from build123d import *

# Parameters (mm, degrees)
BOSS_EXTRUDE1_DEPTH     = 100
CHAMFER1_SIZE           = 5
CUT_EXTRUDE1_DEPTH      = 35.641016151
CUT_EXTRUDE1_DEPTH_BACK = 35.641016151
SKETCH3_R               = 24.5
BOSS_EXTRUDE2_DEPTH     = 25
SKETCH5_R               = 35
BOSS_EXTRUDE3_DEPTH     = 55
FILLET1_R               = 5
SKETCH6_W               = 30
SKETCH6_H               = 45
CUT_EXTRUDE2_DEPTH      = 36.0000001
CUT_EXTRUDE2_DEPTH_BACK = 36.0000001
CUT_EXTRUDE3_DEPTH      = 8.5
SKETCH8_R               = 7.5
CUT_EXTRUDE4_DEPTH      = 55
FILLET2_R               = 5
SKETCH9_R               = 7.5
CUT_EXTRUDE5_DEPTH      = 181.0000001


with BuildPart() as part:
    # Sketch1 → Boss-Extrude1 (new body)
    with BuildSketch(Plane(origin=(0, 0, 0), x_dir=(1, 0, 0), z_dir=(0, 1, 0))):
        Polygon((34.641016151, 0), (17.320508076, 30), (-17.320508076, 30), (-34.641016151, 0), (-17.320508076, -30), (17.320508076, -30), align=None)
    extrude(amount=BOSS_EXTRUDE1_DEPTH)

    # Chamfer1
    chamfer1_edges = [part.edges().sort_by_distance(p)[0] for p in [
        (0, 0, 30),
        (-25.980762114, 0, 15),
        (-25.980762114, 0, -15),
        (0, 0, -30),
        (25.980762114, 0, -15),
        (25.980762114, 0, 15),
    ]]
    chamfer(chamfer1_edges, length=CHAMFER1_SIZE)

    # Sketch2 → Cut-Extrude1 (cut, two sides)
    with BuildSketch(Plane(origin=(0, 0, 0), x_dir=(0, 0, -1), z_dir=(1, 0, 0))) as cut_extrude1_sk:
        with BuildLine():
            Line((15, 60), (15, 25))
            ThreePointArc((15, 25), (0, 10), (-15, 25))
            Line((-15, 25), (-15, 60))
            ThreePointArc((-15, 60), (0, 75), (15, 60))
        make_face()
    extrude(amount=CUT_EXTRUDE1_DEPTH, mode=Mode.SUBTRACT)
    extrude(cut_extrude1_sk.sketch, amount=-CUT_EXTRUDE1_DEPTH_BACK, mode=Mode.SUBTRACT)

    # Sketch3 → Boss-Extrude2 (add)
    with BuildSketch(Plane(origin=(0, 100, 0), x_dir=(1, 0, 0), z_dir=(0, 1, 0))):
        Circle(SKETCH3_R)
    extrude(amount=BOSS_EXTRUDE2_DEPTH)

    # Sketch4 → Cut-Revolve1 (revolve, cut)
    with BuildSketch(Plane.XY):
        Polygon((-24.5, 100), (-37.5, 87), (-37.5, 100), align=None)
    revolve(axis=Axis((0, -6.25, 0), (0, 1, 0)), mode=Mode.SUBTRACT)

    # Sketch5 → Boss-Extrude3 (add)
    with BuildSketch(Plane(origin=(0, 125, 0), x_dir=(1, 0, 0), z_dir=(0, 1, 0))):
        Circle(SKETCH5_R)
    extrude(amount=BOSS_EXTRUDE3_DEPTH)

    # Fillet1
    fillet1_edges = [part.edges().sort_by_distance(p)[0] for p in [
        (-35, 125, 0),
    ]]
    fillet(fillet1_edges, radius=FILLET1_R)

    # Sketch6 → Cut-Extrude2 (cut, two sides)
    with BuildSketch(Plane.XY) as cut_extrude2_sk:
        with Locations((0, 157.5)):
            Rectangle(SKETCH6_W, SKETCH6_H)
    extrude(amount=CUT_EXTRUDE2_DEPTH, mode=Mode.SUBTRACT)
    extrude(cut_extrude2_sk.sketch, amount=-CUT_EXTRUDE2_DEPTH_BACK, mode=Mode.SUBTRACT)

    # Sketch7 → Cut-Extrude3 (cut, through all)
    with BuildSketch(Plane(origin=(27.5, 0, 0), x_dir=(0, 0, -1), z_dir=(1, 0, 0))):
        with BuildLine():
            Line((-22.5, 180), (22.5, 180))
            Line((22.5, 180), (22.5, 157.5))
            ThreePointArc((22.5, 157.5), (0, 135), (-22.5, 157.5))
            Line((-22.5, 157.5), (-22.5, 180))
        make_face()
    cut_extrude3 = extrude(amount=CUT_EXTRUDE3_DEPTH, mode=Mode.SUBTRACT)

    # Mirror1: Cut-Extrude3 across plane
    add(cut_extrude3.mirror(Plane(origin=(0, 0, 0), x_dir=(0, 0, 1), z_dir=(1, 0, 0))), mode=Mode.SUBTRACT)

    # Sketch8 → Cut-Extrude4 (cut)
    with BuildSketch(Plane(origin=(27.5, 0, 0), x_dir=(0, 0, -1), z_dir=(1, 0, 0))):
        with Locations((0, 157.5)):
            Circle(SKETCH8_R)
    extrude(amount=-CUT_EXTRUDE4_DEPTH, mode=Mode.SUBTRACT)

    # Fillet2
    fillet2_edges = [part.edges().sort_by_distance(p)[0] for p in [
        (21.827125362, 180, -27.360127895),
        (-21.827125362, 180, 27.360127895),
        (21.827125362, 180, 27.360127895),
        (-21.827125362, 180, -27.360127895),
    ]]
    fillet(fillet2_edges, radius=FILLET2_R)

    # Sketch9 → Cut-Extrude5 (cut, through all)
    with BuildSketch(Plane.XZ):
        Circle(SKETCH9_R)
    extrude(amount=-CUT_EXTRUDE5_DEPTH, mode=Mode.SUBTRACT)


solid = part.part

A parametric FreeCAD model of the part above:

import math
import FreeCAD as App
import Part
import Sketcher
from FreeCAD import Vector
Q = App.Units.Quantity


def edges_at(feature, points):
    """Names of the edges that pass closest to the given points."""
    edges = feature.Shape.Edges
    near = lambda p: min(range(len(edges)), key=lambda i: edges[i].distToShape(Part.Vertex(*p))[0])
    return sorted({f"Edge{near(p) + 1}" for p in points})

doc = App.newDocument("Part")
body = doc.addObject("PartDesign::Body", "Body")

# Sketch on XZ plane
sketch1 = body.newObject("Sketcher::SketchObject", "Sketch")
sketch1.AttachmentSupport = (doc.getObject("XZ_Plane"), [""])
sketch1.MapMode = "FlatFace"
sketch1.addGeometry([
    Part.LineSegment(Vector(35, 0, 0), Vector(17, -30, 0)),  # 0
    Part.LineSegment(Vector(17, -30, 0), Vector(-17, -30, 0)),  # 1
    Part.LineSegment(Vector(-17, -30, 0), Vector(-35, 0, 0)),  # 2
    Part.LineSegment(Vector(-35, 0, 0), Vector(-17, 30, 0)),  # 3
    Part.LineSegment(Vector(-17, 30, 0), Vector(17, 30, 0)),  # 4
    Part.LineSegment(Vector(17, 30, 0), Vector(35, 0, 0)),  # 5
], False)
sketch1.addConstraint([
    Sketcher.Constraint("Coincident", 0, 2, 1, 1),
    Sketcher.Constraint("Coincident", 1, 2, 2, 1),
    Sketcher.Constraint("Coincident", 2, 2, 3, 1),
    Sketcher.Constraint("Coincident", 3, 2, 4, 1),
    Sketcher.Constraint("Coincident", 4, 2, 5, 1),
    Sketcher.Constraint("Coincident", 5, 2, 0, 1),
    Sketcher.Constraint("Horizontal", 1),
    Sketcher.Constraint("Horizontal", 4),
    Sketcher.Constraint("Symmetric", 0, 2, 3, 2, -1, 1),
    Sketcher.Constraint("Symmetric", 2, 2, 5, 2, -1, 1),
    Sketcher.Constraint("PointOnObject", 2, 2, -1),
    Sketcher.Constraint("Parallel", 2, 5),
    Sketcher.Constraint("Vertical", 1, 2, 3, 2),
    Sketcher.Constraint("Angle", 0, Q("-120 deg")),
    Sketcher.Constraint("DistanceY", 0, 2, -1, 1, Q("30 mm")),
    Sketcher.Constraint("DistanceX", 1, 2, 1, 1, Q("34.641016 mm")),
])
pad1 = body.newObject("PartDesign::Pad", "Pad")
pad1.Profile = sketch1
pad1.Length = 100
pad1.Reversed = True
doc.recompute()

chamfer = body.newObject("PartDesign::Chamfer", "Chamfer")
chamfer.Base = (pad1, edges_at(pad1, [
    (0, 0, 30),
    (-25.981, 0, 15),
    (-25.981, 0, -15),
    (0, 0, -30),
    (25.981, 0, -15),
    (25.981, 0, 15),
]))
chamfer.Size = 5

# Sketch on YZ plane
sketch2 = body.newObject("Sketcher::SketchObject", "Sketch001")
sketch2.AttachmentSupport = (doc.getObject("YZ_Plane"), [""])
sketch2.MapMode = "FlatFace"
sketch2.addGeometry([
    Part.LineSegment(Vector(25, -15, 0), Vector(60, -15, 0)),
    Part.ArcOfCircle(Part.Circle(Vector(60, 0, 0), Vector(0, 0, 1), 15), math.radians(-90), math.radians(90)),
    Part.LineSegment(Vector(60, 15, 0), Vector(25, 15, 0)),
    Part.ArcOfCircle(Part.Circle(Vector(25, 0, 0), Vector(0, 0, 1), 15), math.radians(90), math.radians(270)),
], False)
sketch2.addConstraint([
    Sketcher.Constraint("Tangent", 0, 2, 1, 1),
    Sketcher.Constraint("Tangent", 1, 2, 2, 1),
    Sketcher.Constraint("Tangent", 2, 2, 3, 1),
    Sketcher.Constraint("Tangent", 3, 2, 0, 1),
    Sketcher.Constraint("Horizontal", 0),
    Sketcher.Constraint("Horizontal", 2),
    Sketcher.Constraint("PointOnObject", 1, 3, -1),
    Sketcher.Constraint("Radius", 1, Q("15 mm")),
    Sketcher.Constraint("DistanceX", 0, 1, 0, 2, Q("35 mm")),
    Sketcher.Constraint("DistanceX", -1, 1, 1, 3, Q("60 mm")),
])
pocket1 = body.newObject("PartDesign::Pocket", "Pocket")
pocket1.Profile = sketch2
pocket1.Type = "ThroughAll"
pocket1.Midplane = True

# Sketch on XZ plane
sketch3 = body.newObject("Sketcher::SketchObject", "Sketch002")
sketch3.AttachmentSupport = (doc.getObject("XZ_Plane"), [""])
sketch3.MapMode = "FlatFace"
sketch3.AttachmentOffset = App.Placement(Vector(0, 0, -100), App.Rotation())
sketch3.addGeometry(Part.Circle(Vector(0, 0, 0), Vector(0, 0, 1), 24), False)
sketch3.addConstraint([
    Sketcher.Constraint("Coincident", 0, 3, -1, 1),
    Sketcher.Constraint("Diameter", 0, Q("49 mm")),
])
pad2 = body.newObject("PartDesign::Pad", "Pad001")
pad2.Profile = sketch3
pad2.Length = 25
pad2.Reversed = True

# Sketch on XY plane
sketch4 = body.newObject("Sketcher::SketchObject", "Sketch003")
sketch4.AttachmentSupport = (doc.getObject("XY_Plane"), [""])
sketch4.MapMode = "FlatFace"
sketch4.addGeometry([
    Part.LineSegment(Vector(-38, 87, 0), Vector(-24, 100, 0)),
    Part.LineSegment(Vector(-24, 100, 0), Vector(-38, 100, 0)),
    Part.LineSegment(Vector(-38, 100, 0), Vector(-38, 87, 0)),
], False)
sketch4.addConstraint([
    Sketcher.Constraint("Coincident", 0, 2, 1, 1),
    Sketcher.Constraint("Coincident", 1, 2, 2, 1),
    Sketcher.Constraint("Coincident", 2, 2, 0, 1),
    Sketcher.Constraint("Horizontal", 1),
    Sketcher.Constraint("Vertical", 2),
    Sketcher.Constraint("Equal", 1, 2),
    Sketcher.Constraint("DistanceX", 1, 2, 1, 1, Q("13 mm")),
    Sketcher.Constraint("DistanceY", -1, 1, 0, 2, Q("100 mm")),
    Sketcher.Constraint("DistanceX", 0, 2, -1, 1, Q("24.5 mm")),
])
groove = body.newObject("PartDesign::Groove", "Groove")
groove.Profile = sketch4
groove.ReferenceAxis = (sketch4, ["V_Axis"])
groove.Angle = 360

# Sketch on XZ plane
sketch5 = body.newObject("Sketcher::SketchObject", "Sketch004")
sketch5.AttachmentSupport = (doc.getObject("XZ_Plane"), [""])
sketch5.MapMode = "FlatFace"
sketch5.AttachmentOffset = App.Placement(Vector(0, 0, -125), App.Rotation())
sketch5.addGeometry(Part.Circle(Vector(0, 0, 0), Vector(0, 0, 1), 35), False)
sketch5.addConstraint([
    Sketcher.Constraint("Coincident", 0, 3, -1, 1),
    Sketcher.Constraint("Diameter", 0, Q("70 mm")),
])
pad3 = body.newObject("PartDesign::Pad", "Pad002")
pad3.Profile = sketch5
pad3.Length = 55
pad3.Reversed = True
doc.recompute()

fillet = body.newObject("PartDesign::Fillet", "Fillet")
fillet.Base = (pad3, edges_at(pad3, [(-35, 125, 0)]))
fillet.Radius = 5

# Sketch on XY plane
sketch6 = body.newObject("Sketcher::SketchObject", "Sketch005")
sketch6.AttachmentSupport = (doc.getObject("XY_Plane"), [""])
sketch6.MapMode = "FlatFace"
sketch6.addGeometry([
    Part.LineSegment(Vector(-15, 180, 0), Vector(-15, 135, 0)),
    Part.LineSegment(Vector(-15, 135, 0), Vector(15, 135, 0)),
    Part.LineSegment(Vector(15, 135, 0), Vector(15, 180, 0)),
    Part.LineSegment(Vector(15, 180, 0), Vector(-15, 180, 0)),
], False)
sketch6.addConstraint([
    Sketcher.Constraint("Coincident", 0, 2, 1, 1),
    Sketcher.Constraint("Coincident", 1, 2, 2, 1),
    Sketcher.Constraint("Coincident", 2, 2, 3, 1),
    Sketcher.Constraint("Coincident", 3, 2, 0, 1),
    Sketcher.Constraint("Vertical", 0),
    Sketcher.Constraint("Horizontal", 1),
    Sketcher.Constraint("Vertical", 2),
    Sketcher.Constraint("Horizontal", 3),
    Sketcher.Constraint("DistanceX", 1, 1, 1, 2, Q("30 mm")),
    Sketcher.Constraint("DistanceY", 0, 2, 0, 1, Q("45 mm")),
    Sketcher.Constraint("DistanceX", 0, 2, -1, 1, Q("15 mm")),
    Sketcher.Constraint("DistanceY", -1, 1, 0, 2, Q("135 mm")),
])
pocket2 = body.newObject("PartDesign::Pocket", "Pocket001")
pocket2.Profile = sketch6
pocket2.Type = "ThroughAll"
pocket2.Midplane = True

# Sketch on YZ plane
sketch7 = body.newObject("Sketcher::SketchObject", "Sketch006")
sketch7.AttachmentSupport = (doc.getObject("YZ_Plane"), [""])
sketch7.MapMode = "FlatFace"
sketch7.AttachmentOffset = App.Placement(Vector(0, 0, 27.5), App.Rotation())
sketch7.addGeometry([
    Part.LineSegment(Vector(180, -22, 0), Vector(180, 22, 0)),
    Part.LineSegment(Vector(180, 22, 0), Vector(158, 22, 0)),
    Part.ArcOfCircle(Part.Circle(Vector(158, 0, 0), Vector(0, 0, 1), 22), math.radians(90), math.radians(270)),
    Part.LineSegment(Vector(158, -22, 0), Vector(180, -22, 0)),
], False)
sketch7.addConstraint([
    Sketcher.Constraint("Coincident", 0, 2, 1, 1),
    Sketcher.Constraint("Tangent", 1, 2, 2, 1),
    Sketcher.Constraint("Tangent", 2, 2, 3, 1),
    Sketcher.Constraint("Coincident", 3, 2, 0, 1),
    Sketcher.Constraint("Vertical", 0),
    Sketcher.Constraint("Horizontal", 1),
    Sketcher.Constraint("Horizontal", 3),
    Sketcher.Constraint("PointOnObject", 2, 3, -1),
    Sketcher.Constraint("Radius", 2, Q("22.5 mm")),
    Sketcher.Constraint("DistanceX", 1, 2, 1, 1, Q("22.5 mm")),
    Sketcher.Constraint("DistanceX", -1, 1, 0, 2, Q("180 mm")),
])
pocket3 = body.newObject("PartDesign::Pocket", "Pocket002")
pocket3.Profile = sketch7
pocket3.Type = "ThroughAll"
pocket3.Reversed = True
doc.recompute()

mirrored = body.newObject("PartDesign::Mirrored", "Mirrored")
mirrored.Originals = [pocket3]
mirrored.MirrorPlane = (doc.getObject("YZ_Plane"), [""])
body.Tip = mirrored

# Sketch on YZ plane
sketch8 = body.newObject("Sketcher::SketchObject", "Sketch007")
sketch8.AttachmentSupport = (doc.getObject("YZ_Plane"), [""])
sketch8.MapMode = "FlatFace"
sketch8.AttachmentOffset = App.Placement(Vector(0, 0, 27.5), App.Rotation())
sketch8.addGeometry(Part.Circle(Vector(158, 0, 0), Vector(0, 0, 1), 8), False)
sketch8.addConstraint([
    Sketcher.Constraint("PointOnObject", 0, 3, -1),
    Sketcher.Constraint("Diameter", 0, Q("15 mm")),
    Sketcher.Constraint("DistanceX", -1, 1, 0, 3, Q("157.5 mm")),
])
pocket4 = body.newObject("PartDesign::Pocket", "Pocket003")
pocket4.Profile = sketch8
pocket4.Length = 55
doc.recompute()

fillet2 = body.newObject("PartDesign::Fillet", "Fillet001")
fillet2.Base = (pocket4, edges_at(pocket4, [
    (21.827, 180, -27.36),
    (-21.827, 180, 27.36),
    (21.827, 180, 27.36),
    (-21.827, 180, -27.36),
]))
fillet2.Radius = 5

# Sketch on XZ plane
sketch9 = body.newObject("Sketcher::SketchObject", "Sketch008")
sketch9.AttachmentSupport = (doc.getObject("XZ_Plane"), [""])
sketch9.MapMode = "FlatFace"
sketch9.addGeometry(Part.Circle(Vector(0, 0, 0), Vector(0, 0, 1), 8), False)
sketch9.addConstraint([
    Sketcher.Constraint("Coincident", 0, 3, -1, 1),
    Sketcher.Constraint("Diameter", 0, Q("15 mm")),
])
pocket5 = body.newObject("PartDesign::Pocket", "Pocket004")
pocket5.Profile = sketch9
pocket5.Type = "ThroughAll"

doc.recompute()
